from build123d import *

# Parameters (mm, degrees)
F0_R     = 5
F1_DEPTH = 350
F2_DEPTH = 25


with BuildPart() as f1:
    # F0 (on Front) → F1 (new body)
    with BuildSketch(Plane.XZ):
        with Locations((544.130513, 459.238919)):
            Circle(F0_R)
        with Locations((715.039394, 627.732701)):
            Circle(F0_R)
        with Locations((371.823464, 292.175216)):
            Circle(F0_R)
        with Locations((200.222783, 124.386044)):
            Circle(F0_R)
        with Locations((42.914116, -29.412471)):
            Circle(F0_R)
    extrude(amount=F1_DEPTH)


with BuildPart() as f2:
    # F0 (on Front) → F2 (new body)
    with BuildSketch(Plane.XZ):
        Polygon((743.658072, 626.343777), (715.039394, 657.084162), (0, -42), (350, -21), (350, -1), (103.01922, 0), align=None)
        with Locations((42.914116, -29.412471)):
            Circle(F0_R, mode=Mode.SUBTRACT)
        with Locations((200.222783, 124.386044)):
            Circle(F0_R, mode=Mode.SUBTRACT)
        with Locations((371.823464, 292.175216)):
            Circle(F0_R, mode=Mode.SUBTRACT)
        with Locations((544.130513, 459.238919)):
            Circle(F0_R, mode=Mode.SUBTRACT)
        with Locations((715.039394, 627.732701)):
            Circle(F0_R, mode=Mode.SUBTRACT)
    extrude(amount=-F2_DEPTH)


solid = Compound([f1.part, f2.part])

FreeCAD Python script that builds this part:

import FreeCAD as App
import Part
import Sketcher

V = App.Vector

doc = App.newDocument("Part")
params = doc.addObject("Spreadsheet::Sheet", "Params")
for row, (alias, value) in enumerate([
    ("sketch1_diameter", "10 mm"),
    ("pad1_length", "350 mm"),
    ("sketch2_diameter", "10 mm"),
    ("sketch2_height", "20 mm"),
    ("sketch2_length", "42 mm"),
    ("sketch2_length2", "1000 mm"),
    ("pad2_length", "25 mm"),
], start=1):
    params.set(f"A{row}", alias)
    params.set(f"B{row}", "=" + value)
    params.setAlias(f"B{row}", alias)

body = doc.addObject("PartDesign::Body", "Body")
body.AllowCompound = True

sketch1 = doc.addObject("Sketcher::SketchObject", "Sketch")
body.addObject(sketch1)
sketch1.AttachmentSupport = (doc.XZ_Plane, [""])
sketch1.MapMode = "FlatFace"
sketch1.addGeometry([
    Part.Circle(V(544, 459, 0), V(0, 0, 1), 5),
    Part.Circle(V(715, 628, 0), V(0, 0, 1), 5),
    Part.Circle(V(372, 292, 0), V(0, 0, 1), 5),
    Part.Circle(V(200, 124, 0), V(0, 0, 1), 5),
    Part.Circle(V(43, -29, 0), V(0, 0, 1), 5),
], False)
sketch1.addConstraint([
    Sketcher.Constraint("Equal", 0, 1),
    Sketcher.Constraint("Equal", 1, 2),
    Sketcher.Constraint("Equal", 2, 3),
    Sketcher.Constraint("Equal", 3, 4),
    Sketcher.Constraint("Diameter", 0, 10.0),
    Sketcher.Constraint("DistanceY", -1, 1, 1, 3, 627.732701),
    Sketcher.Constraint("DistanceY", -1, 1, 0, 3, 459.238919),
    Sketcher.Constraint("DistanceY", 4, 3, -1, 1, 29.412471),
    Sketcher.Constraint("DistanceX", 0, 3, 1, 3, 170.908881),
    Sketcher.Constraint("DistanceX", 2, 3, 0, 3, 172.307049),
    Sketcher.Constraint("DistanceX", 3, 3, 2, 3, 171.600681),
    Sketcher.Constraint("DistanceY", 3, 3, 2, 3, 167.789172),
    Sketcher.Constraint("DistanceX", 4, 3, 2, 3, 328.909348),
    Sketcher.Constraint("DistanceX", -1, 1, 0, 3, 544.130513),
    Sketcher.Constraint("DistanceY", -1, 1, 2, 3, 292.175216),
])
sketch1.setExpression("Constraints[4]", "Params.sketch1_diameter")
pad1 = doc.addObject("PartDesign::Pad", "Pad")
body.addObject(pad1)
pad1.Profile = sketch1
pad1.setExpression("Length", "Params.pad1_length")
body2 = doc.addObject("PartDesign::Body", "Body001")

sketch2 = doc.addObject("Sketcher::SketchObject", "Sketch001")
body2.addObject(sketch2)
sketch2.AttachmentSupport = (doc.getObject("XZ_Plane001"), [""])
sketch2.MapMode = "FlatFace"
sketch2.addGeometry([
    Part.LineSegment(V(744, 626, 0), V(715, 657, 0)),
    Part.LineSegment(V(715, 657, 0), V(0, -42, 0)),
    Part.LineSegment(V(0, -42, 0), V(350, -21, 0)),
    Part.LineSegment(V(350, -21, 0), V(350, -1, 0)),
    Part.LineSegment(V(350, -1, 0), V(103, 0, 0)),
    Part.LineSegment(V(103, 0, 0), V(744, 626, 0)),
    Part.Circle(V(43, -29, 0), V(0, 0, 1), 5),
    Part.Circle(V(200, 124, 0), V(0, 0, 1), 5),
    Part.Circle(V(372, 292, 0), V(0, 0, 1), 5),
    Part.Circle(V(544, 459, 0), V(0, 0, 1), 5),
    Part.Circle(V(715, 628, 0), V(0, 0, 1), 5),
], False)
sketch2.addConstraint([
    Sketcher.Constraint("Coincident", 0, 2, 1, 1),
    Sketcher.Constraint("Coincident", 1, 2, 2, 1),
    Sketcher.Constraint("Coincident", 2, 2, 3, 1),
    Sketcher.Constraint("Coincident", 3, 2, 4, 1),
    Sketcher.Constraint("Coincident", 4, 2, 5, 1),
    Sketcher.Constraint("Coincident", 5, 2, 0, 1),
    Sketcher.Constraint("Vertical", 3),
    Sketcher.Constraint("Equal", 6, 7),
    Sketcher.Constraint("Equal", 7, 8),
    Sketcher.Constraint("Equal", 8, 9),
    Sketcher.Constraint("Equal", 9, 10),
    Sketcher.Constraint("PointOnObject", 1, 2, -2),
    Sketcher.Constraint("PointOnObject", 4, 2, -1),
    Sketcher.Constraint("Parallel", 1, 5),
    Sketcher.Constraint("Vertical", 10, 3, 0, 2),
    Sketcher.Constraint("Diameter", 6, 10.0),
    Sketcher.Constraint("DistanceY", 3, 1, 3, 2, 20.0),
    Sketcher.Constraint("Distance", 0, 42.0),
    Sketcher.Constraint("Distance", 1, 1000.0),
    Sketcher.Constraint("DistanceY", 1, 2, -1, 1, 42.0),
    Sketcher.Constraint("DistanceX", -1, 1, 2, 2, 350.0),
    Sketcher.Constraint("DistanceY", 2, 2, -1, 1, 21.0),
    Sketcher.Constraint("DistanceY", -1, 1, 10, 3, 627.732701),
    Sketcher.Constraint("Distance", 5, 895.949031),
    Sketcher.Constraint("DistanceY", 6, 3, -1, 1, 29.412471),
    Sketcher.Constraint("DistanceY", -1, 1, 9, 3, 459.238919),
    Sketcher.Constraint("DistanceY", -1, 1, 0, 2, 657.084162),
    Sketcher.Constraint("DistanceX", 7, 3, 8, 3, 171.600681),
    Sketcher.Constraint("DistanceY", 7, 3, 8, 3, 167.789172),
    Sketcher.Constraint("DistanceX", 6, 3, 8, 3, 328.909348),
    Sketcher.Constraint("DistanceX", 8, 3, 9, 3, 172.307049),
    Sketcher.Constraint("DistanceX", 9, 3, 10, 3, 170.908881),
    Sketcher.Constraint("DistanceY", 7, 3, 0, 2, 532.698118),
])
sketch2.setExpression("Constraints[15]", "Params.sketch2_diameter")
sketch2.setExpression("Constraints[16]", "Params.sketch2_height")
sketch2.setExpression("Constraints[17]", "Params.sketch2_length")
sketch2.setExpression("Constraints[18]", "Params.sketch2_length2")
pad2 = doc.addObject("PartDesign::Pad", "Pad001")
body2.addObject(pad2)
pad2.Profile = sketch2
pad2.setExpression("Length", "Params.pad2_length")
pad2.Reversed = True

doc.recompute()
